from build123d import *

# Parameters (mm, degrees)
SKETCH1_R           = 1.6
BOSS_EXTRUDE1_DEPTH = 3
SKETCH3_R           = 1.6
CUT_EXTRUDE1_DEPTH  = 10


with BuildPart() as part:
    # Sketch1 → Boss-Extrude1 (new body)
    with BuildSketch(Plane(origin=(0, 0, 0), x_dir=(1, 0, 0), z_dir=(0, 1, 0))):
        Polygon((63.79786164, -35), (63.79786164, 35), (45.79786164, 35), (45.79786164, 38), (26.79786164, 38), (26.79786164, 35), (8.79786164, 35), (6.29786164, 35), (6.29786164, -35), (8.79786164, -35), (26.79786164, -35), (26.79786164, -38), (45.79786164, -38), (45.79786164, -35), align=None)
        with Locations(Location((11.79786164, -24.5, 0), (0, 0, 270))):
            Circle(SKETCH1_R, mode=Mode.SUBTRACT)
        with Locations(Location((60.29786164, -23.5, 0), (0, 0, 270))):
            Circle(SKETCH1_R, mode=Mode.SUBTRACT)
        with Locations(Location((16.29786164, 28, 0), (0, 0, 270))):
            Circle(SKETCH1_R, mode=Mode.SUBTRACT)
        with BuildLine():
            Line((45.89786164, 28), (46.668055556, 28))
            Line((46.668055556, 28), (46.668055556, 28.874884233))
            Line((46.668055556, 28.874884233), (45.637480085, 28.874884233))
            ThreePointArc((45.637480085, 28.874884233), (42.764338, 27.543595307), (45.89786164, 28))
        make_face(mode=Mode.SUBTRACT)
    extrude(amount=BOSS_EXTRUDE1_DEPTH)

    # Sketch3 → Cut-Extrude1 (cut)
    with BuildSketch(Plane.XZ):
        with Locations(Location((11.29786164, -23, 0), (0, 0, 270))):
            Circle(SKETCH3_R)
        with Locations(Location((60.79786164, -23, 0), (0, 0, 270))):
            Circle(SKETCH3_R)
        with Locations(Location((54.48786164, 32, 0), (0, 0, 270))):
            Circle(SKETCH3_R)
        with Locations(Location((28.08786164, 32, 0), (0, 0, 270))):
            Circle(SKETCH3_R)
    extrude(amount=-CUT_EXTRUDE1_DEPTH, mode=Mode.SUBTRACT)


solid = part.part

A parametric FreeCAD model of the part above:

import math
import FreeCAD as App
import Part
import Sketcher

V = App.Vector
Q = App.Units.Quantity

doc = App.newDocument("Part")
body = doc.addObject("PartDesign::Body", "Body")

sketch1 = doc.addObject("Sketcher::SketchObject", "Sketch")
body.addObject(sketch1)
sketch1.AttachmentSupport = (doc.XZ_Plane, [""])
sketch1.MapMode = "FlatFace"
sketch1.addGeometry([
    Part.LineSegment(V(63.797862, 35, 0), V(63.797862, -35, 0)),
    Part.LineSegment(V(63.797862, -35, 0), V(45.797862, -35, 0)),
    Part.LineSegment(V(45.797862, -35, 0), V(45.797862, -38, 0)),
    Part.LineSegment(V(45.797862, -38, 0), V(26.797862, -38, 0)),
    Part.LineSegment(V(26.797862, -38, 0), V(26.797862, -35, 0)),
    Part.LineSegment(V(26.797862, -35, 0), V(6.297862, -35, 0)),
    Part.LineSegment(V(6.297862, -35, 0), V(6.297862, 35, 0)),
    Part.LineSegment(V(6.297862, 35, 0), V(26.797862, 35, 0)),
    Part.LineSegment(V(26.797862, 35, 0), V(26.797862, 38, 0)),
    Part.LineSegment(V(26.797862, 38, 0), V(45.797862, 38, 0)),
    Part.LineSegment(V(45.797862, 38, 0), V(45.797862, 35, 0)),
    Part.LineSegment(V(45.797862, 35, 0), V(63.797862, 35, 0)),
    Part.Circle(V(11.797862, 24.5, 0), V(0, 0, 1), 1.6),
    Part.Circle(V(60.297862, 23.5, 0), V(0, 0, 1), 1.6),
    Part.Circle(V(16.297862, -28, 0), V(0, 0, 1), 1.6),
    Part.LineSegment(V(46.668056, -28, 0), V(45.897862, -28, 0)),
    Part.ArcOfCircle(Part.Circle(V(44.297862, -28, 0), V(0, 0, 1), 1.6), math.radians(0), math.radians(326.852064)),
    Part.LineSegment(V(45.63748, -28.874884, 0), V(46.668056, -28.874884, 0)),
    Part.LineSegment(V(46.668056, -28.874884, 0), V(46.668056, -28, 0)),
], False)
sketch1.addConstraint([
    Sketcher.Constraint("Coincident", 0, 2, 1, 1),
    Sketcher.Constraint("Coincident", 1, 2, 2, 1),
    Sketcher.Constraint("Coincident", 2, 2, 3, 1),
    Sketcher.Constraint("Coincident", 3, 2, 4, 1),
    Sketcher.Constraint("Coincident", 4, 2, 5, 1),
    Sketcher.Constraint("Coincident", 5, 2, 6, 1),
    Sketcher.Constraint("Coincident", 6, 2, 7, 1),
    Sketcher.Constraint("Coincident", 7, 2, 8, 1),
    Sketcher.Constraint("Coincident", 8, 2, 9, 1),
    Sketcher.Constraint("Coincident", 9, 2, 10, 1),
    Sketcher.Constraint("Coincident", 10, 2, 11, 1),
    Sketcher.Constraint("Coincident", 11, 2, 0, 1),
    Sketcher.Constraint("Coincident", 15, 2, 16, 1),
    Sketcher.Constraint("Coincident", 16, 2, 17, 1),
    Sketcher.Constraint("Coincident", 17, 2, 18, 1),
    Sketcher.Constraint("Coincident", 18, 2, 15, 1),
    Sketcher.Constraint("Vertical", 0),
    Sketcher.Constraint("Horizontal", 1),
    Sketcher.Constraint("Vertical", 2),
    Sketcher.Constraint("Horizontal", 3),
    Sketcher.Constraint("Vertical", 4),
    Sketcher.Constraint("Horizontal", 5),
    Sketcher.Constraint("Vertical", 6),
    Sketcher.Constraint("Horizontal", 7),
    Sketcher.Constraint("Vertical", 8),
    Sketcher.Constraint("Horizontal", 9),
    Sketcher.Constraint("Vertical", 10),
    Sketcher.Constraint("Horizontal", 11),
    Sketcher.Constraint("Horizontal", 15),
    Sketcher.Constraint("Horizontal", 17),
    Sketcher.Constraint("Vertical", 18),
    Sketcher.Constraint("Equal", 12, 13),
    Sketcher.Constraint("Equal", 13, 14),
    Sketcher.Constraint("Equal", 14, 16),
    Sketcher.Constraint("Symmetric", 4, 2, 7, 2, -1),
    Sketcher.Constraint("Symmetric", 2, 2, 9, 2, -1),
    Sketcher.Constraint("Horizontal", 14, 3, 16, 3),
    Sketcher.Constraint("Horizontal", 1, 2, 4, 2),
    Sketcher.Constraint("Horizontal", 7, 2, 10, 2),
    Sketcher.Constraint("Horizontal", 16, 3, 15, 2),
    Sketcher.Constraint("Diameter", 12, Q("3.2 mm")),
    Sketcher.Constraint("DistanceX", 1, 2, 1, 1, Q("18 mm")),
    Sketcher.Constraint("DistanceX", 3, 2, 3, 1, Q("19 mm")),
    Sketcher.Constraint("DistanceY", 0, 2, 0, 1, Q("70 mm")),
    Sketcher.Constraint("DistanceY", 2, 2, 2, 1, Q("3 mm")),
    Sketcher.Constraint("DistanceX", 5, 2, 5, 1, Q("20.5 mm")),
    Sketcher.Constraint("DistanceY", 14, 3, -1, 1, Q("28 mm")),
    Sketcher.Constraint("DistanceY", 13, 3, 12, 3, Q("1 mm")),
    Sketcher.Constraint("DistanceX", 14, 3, 13, 3, Q("44 mm")),
    Sketcher.Constraint("DistanceX", 14, 3, 16, 3, Q("28 mm")),
    Sketcher.Constraint("DistanceX", 12, 3, 0, 2, Q("52 mm")),
    Sketcher.Constraint("DistanceX", 5, 2, 14, 3, Q("10 mm")),
    Sketcher.Constraint("DistanceY", -1, 1, 12, 3, Q("24.5 mm")),
    Sketcher.Constraint("DistanceX", 15, 2, 15, 1, Q("0.770194 mm")),
    Sketcher.Constraint("DistanceX", 17, 1, 17, 2, Q("1.030575 mm")),
    Sketcher.Constraint("DistanceX", -1, 1, 12, 3, Q("11.797862 mm")),
])
pad1 = doc.addObject("PartDesign::Pad", "Pad")
body.addObject(pad1)
pad1.Profile = sketch1
pad1.Length = 3
pad1.Reversed = True

sketch2 = doc.addObject("Sketcher::SketchObject", "Sketch001")
body.addObject(sketch2)
sketch2.AttachmentSupport = (doc.XZ_Plane, [""])
sketch2.MapMode = "FlatFace"
sketch2.addGeometry([
    Part.Circle(V(11.297862, -23, 0), V(0, 0, 1), 1.6),
    Part.Circle(V(60.797862, -23, 0), V(0, 0, 1), 1.6),
    Part.Circle(V(54.487862, 32, 0), V(0, 0, 1), 1.6),
    Part.Circle(V(28.087862, 32, 0), V(0, 0, 1), 1.6),
], False)
sketch2.addConstraint([
    Sketcher.Constraint("Equal", 0, 1),
    Sketcher.Constraint("Equal", 1, 2),
    Sketcher.Constraint("Equal", 2, 3),
    Sketcher.Constraint("Horizontal", 0, 3, 1, 3),
    Sketcher.Constraint("Horizontal", 2, 3, 3, 3),
    Sketcher.Constraint("Diameter", 0, Q("3.2 mm")),
    Sketcher.Constraint("DistanceY", 0, 3, -1, 1, Q("23 mm")),
    Sketcher.Constraint("DistanceY", -1, 1, 2, 3, Q("32 mm")),
    Sketcher.Constraint("DistanceX", 0, 3, 1, 3, Q("49.5 mm")),
    Sketcher.Constraint("DistanceX", 3, 3, 2, 3, Q("26.4 mm")),
    Sketcher.Constraint("DistanceX", 2, 3, 1, 3, Q("6.31 mm")),
    Sketcher.Constraint("DistanceX", -1, 1, 0, 3, Q("11.297862 mm")),
])
pocket1 = doc.addObject("PartDesign::Pocket", "Pocket")
body.addObject(pocket1)
pocket1.Profile = sketch2
pocket1.Length = 10

doc.recompute()
